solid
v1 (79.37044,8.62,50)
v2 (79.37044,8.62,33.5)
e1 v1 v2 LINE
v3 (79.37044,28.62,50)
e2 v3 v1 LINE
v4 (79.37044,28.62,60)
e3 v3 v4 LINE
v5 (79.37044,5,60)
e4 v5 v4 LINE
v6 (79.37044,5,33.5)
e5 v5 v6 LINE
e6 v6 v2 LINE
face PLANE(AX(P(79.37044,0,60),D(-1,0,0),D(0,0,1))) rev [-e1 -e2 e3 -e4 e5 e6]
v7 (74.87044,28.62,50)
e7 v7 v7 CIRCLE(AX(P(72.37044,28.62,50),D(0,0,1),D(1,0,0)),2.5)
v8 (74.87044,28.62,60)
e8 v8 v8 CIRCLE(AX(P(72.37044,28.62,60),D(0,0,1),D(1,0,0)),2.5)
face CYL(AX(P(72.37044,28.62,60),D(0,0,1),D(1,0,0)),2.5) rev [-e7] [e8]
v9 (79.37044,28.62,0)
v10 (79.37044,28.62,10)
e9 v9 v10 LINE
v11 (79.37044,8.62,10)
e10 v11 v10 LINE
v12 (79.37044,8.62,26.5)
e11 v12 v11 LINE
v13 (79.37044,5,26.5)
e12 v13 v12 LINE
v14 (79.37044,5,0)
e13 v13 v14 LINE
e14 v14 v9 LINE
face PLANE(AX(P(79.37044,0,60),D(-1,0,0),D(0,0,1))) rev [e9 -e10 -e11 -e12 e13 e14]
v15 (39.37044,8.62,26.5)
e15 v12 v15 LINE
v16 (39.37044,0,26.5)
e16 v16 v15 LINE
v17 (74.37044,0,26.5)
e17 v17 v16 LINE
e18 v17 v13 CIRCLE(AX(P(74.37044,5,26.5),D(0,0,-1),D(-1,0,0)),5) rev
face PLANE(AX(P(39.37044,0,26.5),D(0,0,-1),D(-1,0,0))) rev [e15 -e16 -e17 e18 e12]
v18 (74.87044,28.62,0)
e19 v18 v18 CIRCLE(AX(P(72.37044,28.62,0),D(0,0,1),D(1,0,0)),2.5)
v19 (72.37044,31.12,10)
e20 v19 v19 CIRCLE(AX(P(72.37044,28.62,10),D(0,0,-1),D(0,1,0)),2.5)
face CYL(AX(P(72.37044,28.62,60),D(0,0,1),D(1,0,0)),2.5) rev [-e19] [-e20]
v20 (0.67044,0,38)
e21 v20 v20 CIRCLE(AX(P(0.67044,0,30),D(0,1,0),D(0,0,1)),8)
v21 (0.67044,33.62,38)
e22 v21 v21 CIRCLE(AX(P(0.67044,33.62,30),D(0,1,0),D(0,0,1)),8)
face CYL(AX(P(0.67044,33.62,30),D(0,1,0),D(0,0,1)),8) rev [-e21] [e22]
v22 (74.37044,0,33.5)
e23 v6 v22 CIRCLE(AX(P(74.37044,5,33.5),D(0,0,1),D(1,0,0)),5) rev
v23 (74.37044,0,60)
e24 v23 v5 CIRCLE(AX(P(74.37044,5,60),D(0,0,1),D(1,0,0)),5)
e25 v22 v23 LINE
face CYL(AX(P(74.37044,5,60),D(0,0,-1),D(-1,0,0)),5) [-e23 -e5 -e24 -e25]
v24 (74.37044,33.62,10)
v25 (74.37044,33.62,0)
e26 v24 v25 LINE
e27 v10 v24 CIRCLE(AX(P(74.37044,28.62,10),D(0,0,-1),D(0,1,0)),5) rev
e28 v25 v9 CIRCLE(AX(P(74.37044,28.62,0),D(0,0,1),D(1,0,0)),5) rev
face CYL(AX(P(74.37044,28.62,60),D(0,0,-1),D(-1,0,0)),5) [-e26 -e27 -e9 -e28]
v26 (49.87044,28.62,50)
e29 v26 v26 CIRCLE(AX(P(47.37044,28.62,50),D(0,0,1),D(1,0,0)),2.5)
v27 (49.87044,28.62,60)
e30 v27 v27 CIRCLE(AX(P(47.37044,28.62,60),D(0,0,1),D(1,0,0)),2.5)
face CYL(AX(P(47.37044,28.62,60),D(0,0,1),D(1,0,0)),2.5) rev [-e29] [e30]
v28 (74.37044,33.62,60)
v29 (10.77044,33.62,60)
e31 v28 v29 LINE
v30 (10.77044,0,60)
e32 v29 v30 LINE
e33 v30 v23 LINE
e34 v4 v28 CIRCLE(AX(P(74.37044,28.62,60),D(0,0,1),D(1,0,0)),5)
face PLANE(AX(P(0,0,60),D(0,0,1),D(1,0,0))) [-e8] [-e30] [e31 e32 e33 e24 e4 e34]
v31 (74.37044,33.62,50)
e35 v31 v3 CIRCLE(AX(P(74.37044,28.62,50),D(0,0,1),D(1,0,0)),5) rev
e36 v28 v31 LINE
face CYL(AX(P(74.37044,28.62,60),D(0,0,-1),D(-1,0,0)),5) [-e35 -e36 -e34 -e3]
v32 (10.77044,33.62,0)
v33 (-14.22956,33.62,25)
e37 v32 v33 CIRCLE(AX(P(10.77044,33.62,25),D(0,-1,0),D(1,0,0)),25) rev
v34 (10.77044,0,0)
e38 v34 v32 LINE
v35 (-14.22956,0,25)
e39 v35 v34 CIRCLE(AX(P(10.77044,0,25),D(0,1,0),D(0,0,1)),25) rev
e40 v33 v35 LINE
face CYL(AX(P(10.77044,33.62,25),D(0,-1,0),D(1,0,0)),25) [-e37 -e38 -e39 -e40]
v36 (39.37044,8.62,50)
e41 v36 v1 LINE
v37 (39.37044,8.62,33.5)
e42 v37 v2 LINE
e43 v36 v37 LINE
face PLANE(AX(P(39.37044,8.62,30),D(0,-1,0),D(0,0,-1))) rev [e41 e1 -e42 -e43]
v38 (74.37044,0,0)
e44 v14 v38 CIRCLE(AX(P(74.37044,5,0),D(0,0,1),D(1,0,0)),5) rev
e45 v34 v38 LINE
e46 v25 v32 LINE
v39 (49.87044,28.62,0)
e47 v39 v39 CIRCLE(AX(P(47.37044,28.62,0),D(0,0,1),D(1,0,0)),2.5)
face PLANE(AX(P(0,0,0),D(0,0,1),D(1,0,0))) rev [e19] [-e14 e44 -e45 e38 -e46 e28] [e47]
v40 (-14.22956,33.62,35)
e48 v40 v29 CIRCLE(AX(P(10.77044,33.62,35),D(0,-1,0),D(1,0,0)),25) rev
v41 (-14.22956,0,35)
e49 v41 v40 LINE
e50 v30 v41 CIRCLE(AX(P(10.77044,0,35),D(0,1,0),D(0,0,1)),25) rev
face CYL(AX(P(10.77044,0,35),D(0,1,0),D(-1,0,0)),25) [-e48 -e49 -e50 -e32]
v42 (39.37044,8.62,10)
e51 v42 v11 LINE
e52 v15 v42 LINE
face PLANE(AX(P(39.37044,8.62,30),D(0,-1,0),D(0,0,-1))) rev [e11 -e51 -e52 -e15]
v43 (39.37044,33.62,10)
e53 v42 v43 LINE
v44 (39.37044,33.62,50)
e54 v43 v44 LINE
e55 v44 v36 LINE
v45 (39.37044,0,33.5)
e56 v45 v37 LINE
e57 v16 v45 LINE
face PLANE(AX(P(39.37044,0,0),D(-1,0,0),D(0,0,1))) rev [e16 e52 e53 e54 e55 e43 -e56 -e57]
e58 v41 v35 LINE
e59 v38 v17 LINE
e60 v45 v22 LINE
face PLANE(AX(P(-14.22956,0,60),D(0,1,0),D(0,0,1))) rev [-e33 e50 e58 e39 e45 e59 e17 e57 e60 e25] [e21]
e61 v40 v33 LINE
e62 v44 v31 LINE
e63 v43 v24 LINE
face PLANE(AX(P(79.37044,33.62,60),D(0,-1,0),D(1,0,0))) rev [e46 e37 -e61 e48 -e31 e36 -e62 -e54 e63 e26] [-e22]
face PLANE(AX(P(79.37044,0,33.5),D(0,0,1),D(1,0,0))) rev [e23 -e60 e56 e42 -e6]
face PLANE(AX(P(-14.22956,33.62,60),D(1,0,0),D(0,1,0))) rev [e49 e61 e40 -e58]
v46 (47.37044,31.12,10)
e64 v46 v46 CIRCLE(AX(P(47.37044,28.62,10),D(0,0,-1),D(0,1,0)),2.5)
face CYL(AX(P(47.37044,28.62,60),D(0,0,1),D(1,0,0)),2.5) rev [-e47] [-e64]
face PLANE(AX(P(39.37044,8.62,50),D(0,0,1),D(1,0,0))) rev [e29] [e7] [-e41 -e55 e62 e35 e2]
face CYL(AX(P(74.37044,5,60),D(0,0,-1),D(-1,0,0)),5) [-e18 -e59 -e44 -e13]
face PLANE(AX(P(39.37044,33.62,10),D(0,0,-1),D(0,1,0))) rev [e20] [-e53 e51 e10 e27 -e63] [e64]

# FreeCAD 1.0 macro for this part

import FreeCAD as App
import Part
import Sketcher


def edges_at(feature, points):
    """Names of the edges that pass closest to the given points."""
    edges = feature.Shape.Edges
    near = lambda p: min(range(len(edges)), key=lambda i: edges[i].distToShape(Part.Vertex(*p))[0])
    return sorted({f"Edge{near(p) + 1}" for p in points})


def add_polygon(sketch, points):
    """Adds a closed chain of lines whose ends are joined by coincident constraints."""
    first, n = sketch.GeometryCount, len(points)
    for a, b in zip(points, points[1:] + points[:1]):
        sketch.addGeometry(Part.LineSegment(App.Vector(*a, 0), App.Vector(*b, 0)), False)
    for i in range(n):
        sketch.addConstraint(Sketcher.Constraint("Coincident", first + i, 2, first + (i + 1) % n, 1))

doc = App.newDocument("Part")
body = doc.addObject("PartDesign::Body", "Body")

# Sketch on XY plane
sketch1 = body.newObject("Sketcher::SketchObject", "Sketch")
sketch1.AttachmentSupport = (doc.getObject("XY_Plane"), [""])
sketch1.MapMode = "FlatFace"
add_polygon(sketch1, [(-14, 34), (-14, 0), (79, 0), (79, 34)])  # lines 0-3
sketch1.addConstraint([
    Sketcher.Constraint("Vertical", 0),
    Sketcher.Constraint("Horizontal", 1),
    Sketcher.Constraint("Vertical", 2),
    Sketcher.Constraint("Horizontal", 3),
    Sketcher.Constraint("PointOnObject", 0, 2, -1),
    Sketcher.Constraint("DistanceX", 1, 1, 1, 2, 93.6),
    Sketcher.Constraint("DistanceY", 0, 2, 0, 1, 33.62),
    Sketcher.Constraint("DistanceX", 0, 2, -1, 1, 14.22956),
])
pad1 = body.newObject("PartDesign::Pad", "Pad")
pad1.Profile = sketch1
pad1.Length = 60

# Sketch on YZ plane
sketch2 = body.newObject("Sketcher::SketchObject", "Sketch001")
sketch2.AttachmentSupport = (doc.getObject("YZ_Plane"), [""])
sketch2.MapMode = "FlatFace"
sketch2.AttachmentOffset = App.Placement(App.Vector(0, 0, 79.37044), App.Rotation())
add_polygon(sketch2, [(9, 10), (34, 10), (34, 50), (9, 50)])  # lines 0-3
sketch2.addConstraint([
    Sketcher.Constraint("Horizontal", 0),
    Sketcher.Constraint("Vertical", 1),
    Sketcher.Constraint("Horizontal", 2),
    Sketcher.Constraint("Vertical", 3),
    Sketcher.Constraint("DistanceX", 0, 1, 0, 2, 25.0),
    Sketcher.Constraint("DistanceY", 1, 1, 1, 2, 40.0),
    Sketcher.Constraint("DistanceY", -1, 1, 0, 2, 10.0),
    Sketcher.Constraint("DistanceX", -1, 1, 0, 2, 33.62),
])
pocket1 = body.newObject("PartDesign::Pocket", "Pocket")
pocket1.Profile = sketch2
pocket1.Length = 40
doc.recompute()

fillet = body.newObject("PartDesign::Fillet", "Fillet")
fillet.Base = (pocket1, edges_at(pocket1, [(-14.23, 16.81, 60), (-14.23, 16.81, 0)]))
fillet.Radius = 25

# Sketch on XZ plane
sketch3 = body.newObject("Sketcher::SketchObject", "Sketch002")
sketch3.AttachmentSupport = (doc.getObject("XZ_Plane"), [""])
sketch3.MapMode = "FlatFace"
sketch3.AttachmentOffset = App.Placement(App.Vector(0, 0, -33.62), App.Rotation())
sketch3.addGeometry(Part.Circle(App.Vector(1, 30, 0), App.Vector(0, 0, 1), 8), False)
sketch3.addConstraint([
    Sketcher.Constraint("Diameter", 0, 16.0),
    Sketcher.Constraint("DistanceY", -1, 1, 0, 3, 30.0),
    Sketcher.Constraint("DistanceX", -1, 1, 0, 3, 0.67044),
])
doc.recompute()
hole = body.newObject("PartDesign::Hole", "Hole")
hole.Profile = sketch3
hole.ThreadType = "None"
hole.Diameter = 16
hole.DepthType = "ThroughAll"
hole.Reversed = True
doc.recompute()

fillet2 = body.newObject("PartDesign::Fillet", "Fillet001")
fillet2.Base = (hole, edges_at(hole, [(79.37, 33.62, 5), (79.37, 33.62, 55), (79.37, 0, 30)]))
fillet2.Radius = 5

# Sketch on XZ plane
sketch4 = body.newObject("Sketcher::SketchObject", "Sketch003")
sketch4.AttachmentSupport = (doc.getObject("XZ_Plane"), [""])
sketch4.MapMode = "FlatFace"
sketch4.AttachmentOffset = App.Placement(App.Vector(0, 0, -8.62), App.Rotation())
add_polygon(sketch4, [(39, 26), (39, 34), (79, 34), (79, 26)])  # lines 0-3
sketch4.addConstraint([
    Sketcher.Constraint("Vertical", 0),
    Sketcher.Constraint("Horizontal", 1),
    Sketcher.Constraint("Vertical", 2),
    Sketcher.Constraint("Horizontal", 3),
    Sketcher.Constraint("DistanceX", 1, 1, 1, 2, 40.0),
    Sketcher.Constraint("DistanceY", 0, 1, 0, 2, 7.0),
    Sketcher.Constraint("DistanceY", -1, 1, 0, 2, 33.5),
    Sketcher.Constraint("DistanceX", -1, 1, 0, 2, 39.37044),
])
pocket2 = body.newObject("PartDesign::Pocket", "Pocket001")
pocket2.Profile = sketch4
pocket2.Type = "ThroughAll"
pocket2.Reversed = True

# Sketch on XY plane
sketch5 = body.newObject("Sketcher::SketchObject", "Sketch004")
sketch5.AttachmentSupport = (doc.getObject("XY_Plane"), [""])
sketch5.MapMode = "FlatFace"
sketch5.AttachmentOffset = App.Placement(App.Vector(0, 0, 60), App.Rotation())
sketch5.addGeometry([
    Part.Circle(App.Vector(72.4, 28.6, 0), App.Vector(0, 0, 1), 2.5),
    Part.Circle(App.Vector(47.4, 28.6, 0), App.Vector(0, 0, 1), 2.5),
], False)
sketch5.addConstraint([
    Sketcher.Constraint("Equal", 0, 1),
    Sketcher.Constraint("Horizontal", 0, 3, 1, 3),
    Sketcher.Constraint("Diameter", 0, 5.0),
    Sketcher.Constraint("DistanceX", 1, 3, 0, 3, 25.0),
    Sketcher.Constraint("DistanceY", -1, 1, 0, 3, 28.62),
    Sketcher.Constraint("DistanceX", -1, 1, 0, 3, 72.37044),
])
doc.recompute()
hole2 = body.newObject("PartDesign::Hole", "Hole001")
hole2.Profile = sketch5
hole2.ThreadType = "None"
hole2.Diameter = 5
hole2.DepthType = "ThroughAll"

doc.recompute()
